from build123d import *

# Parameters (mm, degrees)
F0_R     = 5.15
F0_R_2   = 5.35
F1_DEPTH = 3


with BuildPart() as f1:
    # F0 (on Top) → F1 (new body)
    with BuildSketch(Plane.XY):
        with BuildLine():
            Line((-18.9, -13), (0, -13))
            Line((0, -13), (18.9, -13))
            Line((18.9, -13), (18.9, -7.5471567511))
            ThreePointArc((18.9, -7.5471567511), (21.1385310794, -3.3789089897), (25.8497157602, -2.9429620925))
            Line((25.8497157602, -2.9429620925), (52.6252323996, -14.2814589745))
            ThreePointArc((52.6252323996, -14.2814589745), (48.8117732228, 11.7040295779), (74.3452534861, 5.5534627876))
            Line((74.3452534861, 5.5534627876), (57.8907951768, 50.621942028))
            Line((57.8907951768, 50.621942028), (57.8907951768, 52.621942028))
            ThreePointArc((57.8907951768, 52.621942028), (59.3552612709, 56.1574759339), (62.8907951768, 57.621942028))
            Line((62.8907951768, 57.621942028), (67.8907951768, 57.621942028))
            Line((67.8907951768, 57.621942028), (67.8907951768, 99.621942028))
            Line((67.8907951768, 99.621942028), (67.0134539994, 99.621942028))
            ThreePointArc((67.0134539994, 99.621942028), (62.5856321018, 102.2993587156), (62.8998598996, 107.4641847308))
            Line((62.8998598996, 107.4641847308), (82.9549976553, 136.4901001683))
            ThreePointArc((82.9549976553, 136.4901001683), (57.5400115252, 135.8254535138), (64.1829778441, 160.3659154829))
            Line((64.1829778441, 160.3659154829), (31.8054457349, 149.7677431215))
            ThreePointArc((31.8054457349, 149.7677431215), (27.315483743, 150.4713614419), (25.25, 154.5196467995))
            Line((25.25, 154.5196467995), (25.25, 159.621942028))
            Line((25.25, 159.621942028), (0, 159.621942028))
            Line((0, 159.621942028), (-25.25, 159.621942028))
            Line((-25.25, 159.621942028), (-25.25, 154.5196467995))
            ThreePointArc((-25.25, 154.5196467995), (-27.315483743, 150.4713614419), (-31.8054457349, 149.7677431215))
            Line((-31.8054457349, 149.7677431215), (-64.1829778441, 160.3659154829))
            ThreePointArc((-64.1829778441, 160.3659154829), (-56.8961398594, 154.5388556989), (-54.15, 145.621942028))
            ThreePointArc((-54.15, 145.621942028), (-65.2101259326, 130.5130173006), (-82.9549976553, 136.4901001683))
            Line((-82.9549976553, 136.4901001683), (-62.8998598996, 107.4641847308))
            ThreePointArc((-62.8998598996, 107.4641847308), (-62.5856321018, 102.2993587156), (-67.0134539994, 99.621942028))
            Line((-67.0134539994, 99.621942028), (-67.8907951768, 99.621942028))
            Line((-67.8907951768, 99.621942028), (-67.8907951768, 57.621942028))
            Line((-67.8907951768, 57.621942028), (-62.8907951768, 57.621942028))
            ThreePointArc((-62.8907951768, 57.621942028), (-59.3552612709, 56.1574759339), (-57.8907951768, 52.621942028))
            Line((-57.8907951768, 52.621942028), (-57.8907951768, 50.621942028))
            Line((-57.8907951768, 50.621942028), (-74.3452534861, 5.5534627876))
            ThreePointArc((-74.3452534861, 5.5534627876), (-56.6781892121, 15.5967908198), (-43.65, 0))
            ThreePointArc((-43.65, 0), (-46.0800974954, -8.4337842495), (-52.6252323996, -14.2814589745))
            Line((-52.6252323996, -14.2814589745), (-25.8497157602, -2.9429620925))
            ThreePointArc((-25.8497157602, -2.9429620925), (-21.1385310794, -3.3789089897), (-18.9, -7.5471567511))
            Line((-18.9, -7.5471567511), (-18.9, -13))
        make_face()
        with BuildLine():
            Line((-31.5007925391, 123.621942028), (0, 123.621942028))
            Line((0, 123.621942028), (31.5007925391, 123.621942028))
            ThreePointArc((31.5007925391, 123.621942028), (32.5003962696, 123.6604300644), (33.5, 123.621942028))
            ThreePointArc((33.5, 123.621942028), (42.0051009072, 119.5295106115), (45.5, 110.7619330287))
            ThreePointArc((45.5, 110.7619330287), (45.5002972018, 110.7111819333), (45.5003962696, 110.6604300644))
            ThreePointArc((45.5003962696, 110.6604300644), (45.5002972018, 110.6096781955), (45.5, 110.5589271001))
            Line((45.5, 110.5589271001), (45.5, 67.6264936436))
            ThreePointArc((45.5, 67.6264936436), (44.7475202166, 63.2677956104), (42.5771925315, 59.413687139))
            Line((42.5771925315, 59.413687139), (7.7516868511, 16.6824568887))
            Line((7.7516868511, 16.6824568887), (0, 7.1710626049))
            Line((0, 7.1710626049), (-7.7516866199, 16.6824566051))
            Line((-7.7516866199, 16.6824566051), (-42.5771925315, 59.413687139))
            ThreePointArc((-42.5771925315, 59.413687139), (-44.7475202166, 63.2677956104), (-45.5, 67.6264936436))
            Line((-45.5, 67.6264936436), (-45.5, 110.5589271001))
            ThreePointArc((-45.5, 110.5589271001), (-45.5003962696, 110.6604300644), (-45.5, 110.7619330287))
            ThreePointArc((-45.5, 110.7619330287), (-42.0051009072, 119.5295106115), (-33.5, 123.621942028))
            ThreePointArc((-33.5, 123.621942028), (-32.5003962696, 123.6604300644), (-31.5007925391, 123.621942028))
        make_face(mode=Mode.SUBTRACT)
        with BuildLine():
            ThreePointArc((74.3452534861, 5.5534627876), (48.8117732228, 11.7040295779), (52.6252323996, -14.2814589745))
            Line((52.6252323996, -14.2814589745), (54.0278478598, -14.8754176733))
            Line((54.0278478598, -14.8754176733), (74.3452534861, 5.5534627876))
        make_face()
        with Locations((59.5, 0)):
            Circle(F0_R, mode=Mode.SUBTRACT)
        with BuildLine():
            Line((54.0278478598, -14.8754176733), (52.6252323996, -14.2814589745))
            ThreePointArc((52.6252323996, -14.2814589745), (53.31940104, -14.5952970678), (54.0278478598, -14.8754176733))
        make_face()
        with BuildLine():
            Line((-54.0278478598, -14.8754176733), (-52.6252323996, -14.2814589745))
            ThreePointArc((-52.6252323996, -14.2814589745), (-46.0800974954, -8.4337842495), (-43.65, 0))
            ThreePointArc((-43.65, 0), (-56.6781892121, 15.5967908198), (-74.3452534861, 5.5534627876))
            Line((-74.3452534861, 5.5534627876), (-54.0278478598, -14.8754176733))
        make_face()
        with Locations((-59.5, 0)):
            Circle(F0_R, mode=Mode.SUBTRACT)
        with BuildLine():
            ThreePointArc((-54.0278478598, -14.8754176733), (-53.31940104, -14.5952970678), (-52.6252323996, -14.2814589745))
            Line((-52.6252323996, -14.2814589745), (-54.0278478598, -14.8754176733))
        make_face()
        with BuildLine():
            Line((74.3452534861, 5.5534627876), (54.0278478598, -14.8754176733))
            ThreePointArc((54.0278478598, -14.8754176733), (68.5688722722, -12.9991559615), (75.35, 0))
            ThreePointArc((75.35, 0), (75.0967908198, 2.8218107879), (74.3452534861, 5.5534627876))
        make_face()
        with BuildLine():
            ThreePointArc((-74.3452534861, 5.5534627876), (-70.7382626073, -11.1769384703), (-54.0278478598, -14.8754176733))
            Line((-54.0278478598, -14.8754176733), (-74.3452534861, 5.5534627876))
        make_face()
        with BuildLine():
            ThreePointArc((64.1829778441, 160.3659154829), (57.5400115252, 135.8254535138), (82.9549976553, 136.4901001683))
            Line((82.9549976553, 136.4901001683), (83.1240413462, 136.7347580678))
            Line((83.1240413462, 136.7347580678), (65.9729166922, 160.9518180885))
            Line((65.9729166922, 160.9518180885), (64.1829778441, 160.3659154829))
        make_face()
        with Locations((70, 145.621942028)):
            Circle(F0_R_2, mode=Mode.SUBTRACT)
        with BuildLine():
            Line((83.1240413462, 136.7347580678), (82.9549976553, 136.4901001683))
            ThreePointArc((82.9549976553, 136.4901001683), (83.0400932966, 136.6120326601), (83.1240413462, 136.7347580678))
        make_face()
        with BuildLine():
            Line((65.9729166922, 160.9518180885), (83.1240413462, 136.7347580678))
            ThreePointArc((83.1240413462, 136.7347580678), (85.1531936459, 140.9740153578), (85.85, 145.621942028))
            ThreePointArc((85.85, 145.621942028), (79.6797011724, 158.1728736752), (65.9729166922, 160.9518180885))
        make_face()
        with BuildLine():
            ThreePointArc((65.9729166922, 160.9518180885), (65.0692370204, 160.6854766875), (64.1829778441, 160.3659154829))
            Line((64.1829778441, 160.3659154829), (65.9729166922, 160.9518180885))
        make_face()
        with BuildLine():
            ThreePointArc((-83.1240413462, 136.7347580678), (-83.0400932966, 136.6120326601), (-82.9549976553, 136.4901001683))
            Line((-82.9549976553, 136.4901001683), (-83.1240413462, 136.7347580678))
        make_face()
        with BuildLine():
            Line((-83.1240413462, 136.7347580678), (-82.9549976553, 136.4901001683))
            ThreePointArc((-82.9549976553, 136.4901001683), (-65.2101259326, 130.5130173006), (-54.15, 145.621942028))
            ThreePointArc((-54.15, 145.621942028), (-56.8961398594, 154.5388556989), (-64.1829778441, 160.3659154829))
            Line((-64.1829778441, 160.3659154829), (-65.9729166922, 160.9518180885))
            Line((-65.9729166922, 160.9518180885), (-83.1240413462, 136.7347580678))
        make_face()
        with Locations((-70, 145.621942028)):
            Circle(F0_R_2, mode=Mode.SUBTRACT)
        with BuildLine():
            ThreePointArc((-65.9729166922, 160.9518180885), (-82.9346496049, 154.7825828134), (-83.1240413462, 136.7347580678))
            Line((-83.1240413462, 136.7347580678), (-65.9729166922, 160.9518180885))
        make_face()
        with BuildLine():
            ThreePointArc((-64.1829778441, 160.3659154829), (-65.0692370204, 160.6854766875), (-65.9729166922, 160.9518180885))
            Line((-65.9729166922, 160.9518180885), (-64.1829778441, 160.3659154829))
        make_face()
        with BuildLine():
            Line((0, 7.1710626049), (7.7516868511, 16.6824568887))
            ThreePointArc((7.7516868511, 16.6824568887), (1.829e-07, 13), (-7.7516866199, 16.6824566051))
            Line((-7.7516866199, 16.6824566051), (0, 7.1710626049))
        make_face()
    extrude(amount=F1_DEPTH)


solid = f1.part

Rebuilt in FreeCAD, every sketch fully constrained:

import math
import FreeCAD as App
import Part
import Sketcher

V = App.Vector
Q = App.Units.Quantity

doc = App.newDocument("Part")
body = doc.addObject("PartDesign::Body", "Body")

# Sketch on XY plane
sketch1 = body.newObject("Sketcher::SketchObject", "Sketch")
sketch1.AttachmentSupport = (doc.getObject("XY_Plane"), [""])
sketch1.MapMode = "FlatFace"
sketch1.addGeometry([
    Part.LineSegment(V(-18.9, -13, 0), V(18.9, -13, 0)),  # 0
    Part.LineSegment(V(18.9, -13, 0), V(18.9, -7.55, 0)),  # 1
    Part.ArcOfCircle(Part.Circle(V(23.9, -7.55, 0), V(0, 0, 1), 5), math.radians(67), math.radians(180)),  # 2
    Part.LineSegment(V(25.85, -2.94, 0), V(52.63, -14.28, 0)),  # 3
    Part.ArcOfCircle(Part.Circle(V(59.5, 0, 0), V(0, 0, 1), 15.85), math.radians(-115.71), math.radians(-110.2)),  # 4
    Part.ArcOfCircle(Part.Circle(V(59.5, 0, 0), V(0, 0, 1), 15.85), math.radians(-110), math.radians(0)),  # 5
    Part.ArcOfCircle(Part.Circle(V(59.5, 0, 0), V(0, 0, 1), 15.85), math.radians(0), math.radians(21)),  # 6
    Part.LineSegment(V(74.35, 5.55, 0), V(57.89, 50.62, 0)),  # 7
    Part.LineSegment(V(57.89, 50.62, 0), V(57.89, 52.62, 0)),  # 8
    Part.ArcOfCircle(Part.Circle(V(62.89, 52.62, 0), V(0, 0, 1), 5), math.radians(90), math.radians(180)),  # 9
    Part.LineSegment(V(62.89, 57.62, 0), V(67.89, 57.62, 0)),  # 10
    Part.LineSegment(V(67.89, 57.62, 0), V(67.89, 99.62, 0)),  # 11
    Part.LineSegment(V(67.89, 99.62, 0), V(67.01, 99.62, 0)),  # 12
    Part.ArcOfCircle(Part.Circle(V(67.01, 104.62, 0), V(0, 0, 1), 5), math.radians(145), math.radians(270)),  # 13
    Part.LineSegment(V(62.9, 107.46, 0), V(82.95, 136.49, 0)),  # 14
    Part.ArcOfCircle(Part.Circle(V(70, 145.62, 0), V(0, 0, 1), 15.85), math.radians(-35.18), math.radians(-34.1)),  # 15
    Part.ArcOfCircle(Part.Circle(V(70, 145.62, 0), V(0, 0, 1), 15.85), math.radians(-34), math.radians(0)),  # 16
    Part.ArcOfCircle(Part.Circle(V(70, 145.62, 0), V(0, 0, 1), 15.85), math.radians(0), math.radians(105)),  # 17
    Part.ArcOfCircle(Part.Circle(V(70, 145.62, 0), V(0, 0, 1), 15.85), math.radians(104.72), math.radians(111.53)),  # 18
    Part.LineSegment(V(64.18, 160.37, 0), V(31.81, 149.77, 0)),  # 19
    Part.ArcOfCircle(Part.Circle(V(30.25, 154.52, 0), V(0, 0, 1), 5), math.radians(180), math.radians(288)),  # 20
    Part.LineSegment(V(25.25, 154.52, 0), V(25.25, 159.62, 0)),  # 21
    Part.LineSegment(V(25.25, 159.62, 0), V(-25.25, 159.62, 0)),  # 22
    Part.LineSegment(V(-25.25, 159.62, 0), V(-25.25, 154.52, 0)),  # 23
    Part.ArcOfCircle(Part.Circle(V(-30.25, 154.52, 0), V(0, 0, 1), 5), math.radians(-108), math.radians(0)),  # 24
    Part.LineSegment(V(-31.81, 149.77, 0), V(-64.18, 160.37, 0)),  # 25
    Part.ArcOfCircle(Part.Circle(V(-70, 145.62, 0), V(0, 0, 1), 15.85), math.radians(68.47), math.radians(75.28)),  # 26
    Part.ArcOfCircle(Part.Circle(V(-70, 145.62, 0), V(0, 0, 1), 15.85), math.radians(75), math.radians(214)),  # 27
    Part.ArcOfCircle(Part.Circle(V(-70, 145.62, 0), V(0, 0, 1), 15.85), math.radians(-145.9), math.radians(-144.82)),  # 28
    Part.LineSegment(V(-82.95, 136.49, 0), V(-62.9, 107.46, 0)),  # 29
    Part.ArcOfCircle(Part.Circle(V(-67.01, 104.62, 0), V(0, 0, 1), 5), math.radians(-90), math.radians(35)),  # 30
    Part.LineSegment(V(-67.01, 99.62, 0), V(-67.89, 99.62, 0)),  # 31
    Part.LineSegment(V(-67.89, 99.62, 0), V(-67.89, 57.62, 0)),  # 32
    Part.LineSegment(V(-67.89, 57.62, 0), V(-62.89, 57.62, 0)),  # 33
    Part.ArcOfCircle(Part.Circle(V(-62.89, 52.62, 0), V(0, 0, 1), 5), math.radians(0), math.radians(90)),  # 34
    Part.LineSegment(V(-57.89, 52.62, 0), V(-57.89, 50.62, 0)),  # 35
    Part.LineSegment(V(-57.89, 50.62, 0), V(-74.35, 5.55, 0)),  # 36
    Part.ArcOfCircle(Part.Circle(V(-59.5, 0, 0), V(0, 0, 1), 15.85), math.radians(159), math.radians(290)),  # 37
    Part.ArcOfCircle(Part.Circle(V(-59.5, 0, 0), V(0, 0, 1), 15.85), math.radians(-69.8), math.radians(-64.29)),  # 38
    Part.LineSegment(V(-52.63, -14.28, 0), V(-25.85, -2.94, 0)),  # 39
    Part.ArcOfCircle(Part.Circle(V(-23.9, -7.55, 0), V(0, 0, 1), 5), math.radians(0), math.radians(113)),  # 40
    Part.LineSegment(V(-18.9, -7.55, 0), V(-18.9, -13, 0)),  # 41
    Part.Circle(V(-59.5, 0, 0), V(0, 0, 1), 5.15),  # 42
    Part.ArcOfCircle(Part.Circle(V(-32.5, 110.66, 0), V(0, 0, 1), 13), math.radians(85.59), math.radians(94.41)),  # 43
    Part.LineSegment(V(-31.5, 123.62, 0), V(31.5, 123.62, 0)),  # 44
    Part.ArcOfCircle(Part.Circle(V(32.5, 110.66, 0), V(0, 0, 1), 13), math.radians(85.59), math.radians(94.41)),  # 45
    Part.ArcOfCircle(Part.Circle(V(32.5, 110.66, 0), V(0, 0, 1), 13), math.radians(0), math.radians(86)),  # 46
    Part.ArcOfCircle(Part.Circle(V(32.5, 110.66, 0), V(0, 0, 1), 13), math.radians(0), math.radians(0.45)),  # 47
    Part.ArcOfCircle(Part.Circle(V(32.5, 110.66, 0), V(0, 0, 1), 13), math.radians(-0.45), math.radians(0)),  # 48
    Part.LineSegment(V(45.5, 110.56, 0), V(45.5, 67.63, 0)),  # 49
    Part.ArcOfCircle(Part.Circle(V(32.5, 67.63, 0), V(0, 0, 1), 13), math.radians(-39), math.radians(0)),  # 50
    Part.LineSegment(V(42.58, 59.41, 0), V(7.75, 16.68, 0)),  # 51
    Part.ArcOfCircle(Part.Circle(V(0, 23, 0), V(0, 0, 1), 10), math.radians(-141), math.radians(-39)),  # 52
    Part.LineSegment(V(-7.75, 16.68, 0), V(-42.58, 59.41, 0)),  # 53
    Part.ArcOfCircle(Part.Circle(V(-32.5, 67.63, 0), V(0, 0, 1), 13), math.radians(180), math.radians(219)),  # 54
    Part.LineSegment(V(-45.5, 67.63, 0), V(-45.5, 110.56, 0)),  # 55
    Part.ArcOfCircle(Part.Circle(V(-32.5, 110.66, 0), V(0, 0, 1), 13), math.radians(179.55), math.radians(180.45)),  # 56
    Part.ArcOfCircle(Part.Circle(V(-32.5, 110.66, 0), V(0, 0, 1), 13), math.radians(94), math.radians(180)),  # 57
    Part.Circle(V(59.5, 0, 0), V(0, 0, 1), 5.15),  # 58
    Part.Circle(V(-70, 145.62, 0), V(0, 0, 1), 5.35),  # 59
    Part.Circle(V(70, 145.62, 0), V(0, 0, 1), 5.35),  # 60
], False)
sketch1.addConstraint([
    Sketcher.Constraint("Coincident", 0, 2, 1, 1),
    Sketcher.Constraint("Tangent", 1, 2, 2, 2),
    Sketcher.Constraint("Tangent", 2, 1, 3, 1),
    Sketcher.Constraint("Coincident", 3, 2, 4, 1),
    Sketcher.Constraint("Tangent", 4, 2, 5, 1),
    Sketcher.Constraint("Tangent", 5, 2, 6, 1),
    Sketcher.Constraint("Coincident", 6, 2, 7, 1),
    Sketcher.Constraint("Coincident", 7, 2, 8, 1),
    Sketcher.Constraint("Tangent", 8, 2, 9, 2),
    Sketcher.Constraint("Tangent", 9, 1, 10, 1),
    Sketcher.Constraint("Coincident", 10, 2, 11, 1),
    Sketcher.Constraint("Coincident", 11, 2, 12, 1),
    Sketcher.Constraint("Tangent", 12, 2, 13, 2),
    Sketcher.Constraint("Tangent", 13, 1, 14, 1),
    Sketcher.Constraint("Coincident", 14, 2, 15, 1),
    Sketcher.Constraint("Tangent", 15, 2, 16, 1),
    Sketcher.Constraint("Tangent", 16, 2, 17, 1),
    Sketcher.Constraint("Tangent", 17, 2, 18, 1),
    Sketcher.Constraint("Coincident", 18, 2, 19, 1),
    Sketcher.Constraint("Tangent", 19, 2, 20, 2),
    Sketcher.Constraint("Tangent", 20, 1, 21, 1),
    Sketcher.Constraint("Coincident", 21, 2, 22, 1),
    Sketcher.Constraint("Coincident", 22, 2, 23, 1),
    Sketcher.Constraint("Tangent", 23, 2, 24, 2),
    Sketcher.Constraint("Tangent", 24, 1, 25, 1),
    Sketcher.Constraint("Coincident", 25, 2, 26, 1),
    Sketcher.Constraint("Tangent", 26, 2, 27, 1),
    Sketcher.Constraint("Tangent", 27, 2, 28, 1),
    Sketcher.Constraint("Coincident", 28, 2, 29, 1),
    Sketcher.Constraint("Tangent", 29, 2, 30, 2),
    Sketcher.Constraint("Tangent", 30, 1, 31, 1),
    Sketcher.Constraint("Coincident", 31, 2, 32, 1),
    Sketcher.Constraint("Coincident", 32, 2, 33, 1),
    Sketcher.Constraint("Tangent", 33, 2, 34, 2),
    Sketcher.Constraint("Tangent", 34, 1, 35, 1),
    Sketcher.Constraint("Coincident", 35, 2, 36, 1),
    Sketcher.Constraint("Coincident", 36, 2, 37, 1),
    Sketcher.Constraint("Tangent", 37, 2, 38, 1),
    Sketcher.Constraint("Coincident", 38, 2, 39, 1),
    Sketcher.Constraint("Tangent", 39, 2, 40, 2),
    Sketcher.Constraint("Tangent", 40, 1, 41, 1),
    Sketcher.Constraint("Coincident", 41, 2, 0, 1),
    Sketcher.Constraint("Coincident", 43, 1, 44, 1),
    Sketcher.Constraint("Coincident", 44, 2, 45, 2),
    Sketcher.Constraint("Tangent", 45, 1, 46, 2),
    Sketcher.Constraint("Tangent", 46, 1, 47, 2),
    Sketcher.Constraint("Tangent", 47, 1, 48, 2),
    Sketcher.Constraint("Coincident", 48, 1, 49, 1),
    Sketcher.Constraint("Tangent", 49, 2, 50, 2),
    Sketcher.Constraint("Tangent", 50, 1, 51, 1),
    Sketcher.Constraint("Tangent", 51, 2, 52, 2),
    Sketcher.Constraint("Tangent", 52, 1, 53, 1),
    Sketcher.Constraint("Tangent", 53, 2, 54, 2),
    Sketcher.Constraint("Tangent", 54, 1, 55, 1),
    Sketcher.Constraint("Coincident", 55, 2, 56, 2),
    Sketcher.Constraint("Tangent", 56, 1, 57, 2),
    Sketcher.Constraint("Tangent", 57, 1, 43, 2),
    Sketcher.Constraint("Horizontal", 0),
    Sketcher.Constraint("Vertical", 1),
    Sketcher.Constraint("Vertical", 8),
    Sketcher.Constraint("Horizontal", 10),
    Sketcher.Constraint("Vertical", 11),
    Sketcher.Constraint("Horizontal", 12),
    Sketcher.Constraint("Vertical", 21),
    Sketcher.Constraint("Horizontal", 22),
    Sketcher.Constraint("Vertical", 23),
    Sketcher.Constraint("Horizontal", 31),
    Sketcher.Constraint("Vertical", 32),
    Sketcher.Constraint("Horizontal", 33),
    Sketcher.Constraint("Vertical", 35),
    Sketcher.Constraint("Vertical", 41),
    Sketcher.Constraint("Horizontal", 44),
    Sketcher.Constraint("Vertical", 49),
    Sketcher.Constraint("Vertical", 55),
    Sketcher.Constraint("Coincident", 6, 3, 4, 3),
    Sketcher.Constraint("Coincident", 17, 3, 15, 3),
    Sketcher.Constraint("Coincident", 28, 3, 26, 3),
    Sketcher.Constraint("Coincident", 42, 3, 37, 3),
    Sketcher.Constraint("Coincident", 47, 3, 45, 3),
    Sketcher.Constraint("Coincident", 56, 3, 43, 3),
    Sketcher.Constraint("Coincident", 58, 3, 4, 3),
    Sketcher.Constraint("Coincident", 59, 3, 26, 3),
    Sketcher.Constraint("Coincident", 60, 3, 15, 3),
    Sketcher.Constraint("Equal", 2, 9),
    Sketcher.Constraint("Equal", 9, 13),
    Sketcher.Constraint("Equal", 6, 15),
    Sketcher.Constraint("Equal", 17, 18),
    Sketcher.Constraint("Equal", 13, 20),
    Sketcher.Constraint("Equal", 20, 24),
    Sketcher.Constraint("Equal", 18, 26),
    Sketcher.Constraint("Equal", 24, 30),
    Sketcher.Constraint("Equal", 30, 34),
    Sketcher.Constraint("Equal", 28, 37),
    Sketcher.Constraint("Equal", 37, 38),
    Sketcher.Constraint("Equal", 34, 40),
    Sketcher.Constraint("Equal", 43, 45),
    Sketcher.Constraint("Equal", 47, 48),
    Sketcher.Constraint("Equal", 48, 50),
    Sketcher.Constraint("Equal", 50, 54),
    Sketcher.Constraint("Equal", 42, 58),
    Sketcher.Constraint("Equal", 59, 60),
    Sketcher.Constraint("Symmetric", 4, 3, 37, 3, -1, 1),
    Sketcher.Constraint("Symmetric", 20, 3, 24, 3, -2),
    Sketcher.Constraint("Symmetric", 15, 3, 26, 3, -2),
    Sketcher.Constraint("Symmetric", 13, 3, 30, 3, -2),
    Sketcher.Constraint("Symmetric", 9, 3, 34, 3, -2),
    Sketcher.Constraint("Symmetric", 2, 3, 40, 3, -2),
    Sketcher.Constraint("Symmetric", 43, 3, 45, 3, -2),
    Sketcher.Constraint("Symmetric", 50, 3, 54, 3, -2),
    Sketcher.Constraint("Symmetric", 6, 2, 36, 2, -2),
    Sketcher.Constraint("PointOnObject", 52, 3, -2),
    Sketcher.Constraint("PointOnObject", 5, 2, -1),
    Sketcher.Constraint("Horizontal", 60, 3, 16, 2),
    Sketcher.Constraint("Horizontal", 18, 2, 25, 2),
    Sketcher.Constraint("Horizontal", 17, 2, 26, 2),
    Sketcher.Constraint("Horizontal", 15, 2, 27, 2),
    Sketcher.Constraint("Horizontal", 14, 2, 28, 2),
    Sketcher.Constraint("Horizontal", 7, 2, 35, 2),
    Sketcher.Constraint("Horizontal", 4, 2, 37, 2),
    Sketcher.Constraint("Horizontal", 3, 2, 38, 2),
    Sketcher.Constraint("Horizontal", 44, 2, 45, 1),
    Sketcher.Constraint("Horizontal", 57, 3, 47, 1),
    Sketcher.Constraint("Horizontal", 46, 1, 56, 1),
    Sketcher.Constraint("Horizontal", 45, 1, 57, 1),
    Sketcher.Constraint("Vertical", 46, 1, 48, 1),
    Sketcher.Constraint("Equal", 12, 31),
    Sketcher.Constraint("Radius", 2, Q("5 mm")),
    Sketcher.Constraint("Radius", 43, Q("13 mm")),
    Sketcher.Constraint("Radius", 52, Q("10 mm")),
    Sketcher.Constraint("Diameter", 42, Q("10.3 mm")),
    Sketcher.Constraint("Diameter", 59, Q("10.7 mm")),
    Sketcher.Constraint("DistanceX", 10, 1, 10, 2, Q("5 mm")),
    Sketcher.Constraint("DistanceY", 8, 1, 8, 2, Q("2 mm")),
    Sketcher.Constraint("DistanceY", 11, 1, 11, 2, Q("42 mm")),
    Sketcher.Constraint("Radius", 4, Q("15.85 mm")),
    Sketcher.Constraint("DistanceX", 0, 1, 0, 2, Q("37.8 mm")),
    Sketcher.Constraint("DistanceX", 22, 2, 22, 1, Q("50.5 mm")),
    Sketcher.Constraint("DistanceX", -1, 1, 15, 3, Q("70.000001 mm")),
    Sketcher.Constraint("DistanceY", -1, 1, 52, 3, Q("23 mm")),
    Sketcher.Constraint("DistanceY", 0, 2, -1, 1, Q("13 mm")),
    Sketcher.Constraint("DistanceX", -1, 1, 4, 3, Q("59.5 mm")),
    Sketcher.Constraint("DistanceX", -1, 1, 50, 3, Q("32.5 mm")),
    Sketcher.Constraint("DistanceX", -1, 1, 45, 1, Q("33.5 mm")),
    Sketcher.Constraint("DistanceX", 12, 2, 12, 1, Q("0.877341 mm")),
    Sketcher.Constraint("DistanceY", -1, 1, 14, 2, Q("136.4901 mm")),
    Sketcher.Constraint("Distance", 14, Q("35.280481 mm")),
    Sketcher.Constraint("Distance", 19, Q("34.067959 mm")),
    Sketcher.Constraint("DistanceX", 44, 1, 44, 2, Q("63.001585 mm")),
    Sketcher.Constraint("DistanceY", 1, 1, 1, 2, Q("5.452843 mm")),
    Sketcher.Constraint("DistanceY", 21, 1, 21, 2, Q("5.102295 mm")),
    Sketcher.Constraint("DistanceY", 49, 2, 49, 1, Q("42.932433 mm")),
    Sketcher.Constraint("DistanceY", -1, 1, 15, 3, Q("145.621941 mm")),
    Sketcher.Constraint("DistanceY", -1, 1, 43, 3, Q("110.66043 mm")),
    Sketcher.Constraint("DistanceY", 3, 2, -1, 1, Q("14.281459 mm")),
    Sketcher.Constraint("DistanceX", -1, 1, 13, 1, Q("62.89986 mm")),
    Sketcher.Constraint("DistanceX", -1, 1, 15, 2, Q("83.124041 mm")),
    Sketcher.Constraint("DistanceY", -1, 1, 17, 2, Q("160.951818 mm")),
    Sketcher.Constraint("Distance", 7, Q("47.978297 mm")),
    Sketcher.Constraint("DistanceY", -1, 1, 20, 3, Q("154.519647 mm")),
    Sketcher.Constraint("DistanceX", -1, 1, 4, 2, Q("54.027848 mm")),
])
pad1 = body.newObject("PartDesign::Pad", "Pad")
pad1.Profile = sketch1
pad1.Length = 3

doc.recompute()
